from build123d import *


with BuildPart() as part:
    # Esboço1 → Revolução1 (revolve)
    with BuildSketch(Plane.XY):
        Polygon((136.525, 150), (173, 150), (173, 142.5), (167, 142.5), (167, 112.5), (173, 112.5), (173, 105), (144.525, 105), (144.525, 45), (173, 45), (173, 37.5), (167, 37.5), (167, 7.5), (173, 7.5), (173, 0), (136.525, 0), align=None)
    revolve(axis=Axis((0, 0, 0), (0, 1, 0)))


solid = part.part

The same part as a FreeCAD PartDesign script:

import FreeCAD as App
import Part
import Sketcher

V = App.Vector
Q = App.Units.Quantity


def add_polygon(sketch, points):
    """Adds a closed chain of lines whose ends are joined by coincident constraints."""
    first, n = sketch.GeometryCount, len(points)
    for a, b in zip(points, points[1:] + points[:1]):
        sketch.addGeometry(Part.LineSegment(App.Vector(*a, 0), App.Vector(*b, 0)), False)
    for i in range(n):
        sketch.addConstraint(Sketcher.Constraint("Coincident", first + i, 2, first + (i + 1) % n, 1))

doc = App.newDocument("Part")
params = doc.addObject("Spreadsheet::Sheet", "Params")
for row, (alias, value) in enumerate([
    ("sketch1_width", "6 mm"),
    ("sketch1_height", "150 mm"),
    ("sketch1_height2", "30 mm"),
    ("sketch1_height3", "60 mm"),
    ("revolution_angle", "360 deg"),
], start=1):
    params.set(f"A{row}", alias)
    params.set(f"B{row}", "=" + value)
    params.setAlias(f"B{row}", alias)

body = doc.addObject("PartDesign::Body", "Body")

sketch1 = body.newObject("Sketcher::SketchObject", "Sketch")
sketch1.AttachmentSupport = (doc.getObject("XY_Plane"), [""])
sketch1.MapMode = "FlatFace"
add_polygon(sketch1, [(173, 150), (137, 150), (137, 0), (173, 0), (173, 8), (167, 8), (167, 38), (173, 38), (173, 45), (145, 45), (145, 105), (173, 105), (173, 112), (167, 112), (167, 142), (173, 142)])
sketch1.addConstraint([
    Sketcher.Constraint("Horizontal", 0),
    Sketcher.Constraint("Vertical", 1),
    Sketcher.Constraint("Horizontal", 2),
    Sketcher.Constraint("Vertical", 3),
    Sketcher.Constraint("Horizontal", 4),
    Sketcher.Constraint("Vertical", 5),
    Sketcher.Constraint("Horizontal", 6),
    Sketcher.Constraint("Vertical", 7),
    Sketcher.Constraint("Horizontal", 8),
    Sketcher.Constraint("Vertical", 9),
    Sketcher.Constraint("Horizontal", 10),
    Sketcher.Constraint("Vertical", 11),
    Sketcher.Constraint("Horizontal", 12),
    Sketcher.Constraint("Vertical", 13),
    Sketcher.Constraint("Horizontal", 14),
    Sketcher.Constraint("Vertical", 15),
    Sketcher.Constraint("PointOnObject", 1, 2, -1),
    Sketcher.Constraint("Vertical", 3, 2, 6, 2),
    Sketcher.Constraint("Vertical", 7, 2, 10, 2),
    Sketcher.Constraint("Vertical", 5, 2, 12, 2),
    Sketcher.Constraint("Vertical", 11, 2, 14, 2),
    Sketcher.Constraint("Equal", 3, 7),
    Sketcher.Constraint("Equal", 7, 11),
    Sketcher.Constraint("Equal", 5, 13),
    Sketcher.Constraint("Equal", 11, 15),
    Sketcher.Constraint("DistanceX", 4, 2, 4, 1, Q("6 mm")),
    Sketcher.Constraint("DistanceY", 1, 2, 1, 1, Q("150 mm")),
    Sketcher.Constraint("DistanceY", 5, 1, 5, 2, Q("30 mm")),
    Sketcher.Constraint("DistanceY", 9, 1, 9, 2, Q("60 mm")),
    Sketcher.Constraint("DistanceX", -1, 1, 2, 2, Q("173 mm")),
    Sketcher.Constraint("DistanceX", 1, 2, 8, 2, Q("8 mm")),
    Sketcher.Constraint("DistanceX", 0, 2, 0, 1, Q("36.475 mm")),
])
sketch1.setExpression("Constraints[41]", "Params.sketch1_width")
sketch1.setExpression("Constraints[42]", "Params.sketch1_height")
sketch1.setExpression("Constraints[43]", "Params.sketch1_height2")
sketch1.setExpression("Constraints[44]", "Params.sketch1_height3")
revolution = body.newObject("PartDesign::Revolution", "Revolution")
revolution.Profile = sketch1
revolution.ReferenceAxis = (sketch1, ["V_Axis"])
revolution.setExpression("Angle", "Params.revolution_angle")

doc.recompute()
